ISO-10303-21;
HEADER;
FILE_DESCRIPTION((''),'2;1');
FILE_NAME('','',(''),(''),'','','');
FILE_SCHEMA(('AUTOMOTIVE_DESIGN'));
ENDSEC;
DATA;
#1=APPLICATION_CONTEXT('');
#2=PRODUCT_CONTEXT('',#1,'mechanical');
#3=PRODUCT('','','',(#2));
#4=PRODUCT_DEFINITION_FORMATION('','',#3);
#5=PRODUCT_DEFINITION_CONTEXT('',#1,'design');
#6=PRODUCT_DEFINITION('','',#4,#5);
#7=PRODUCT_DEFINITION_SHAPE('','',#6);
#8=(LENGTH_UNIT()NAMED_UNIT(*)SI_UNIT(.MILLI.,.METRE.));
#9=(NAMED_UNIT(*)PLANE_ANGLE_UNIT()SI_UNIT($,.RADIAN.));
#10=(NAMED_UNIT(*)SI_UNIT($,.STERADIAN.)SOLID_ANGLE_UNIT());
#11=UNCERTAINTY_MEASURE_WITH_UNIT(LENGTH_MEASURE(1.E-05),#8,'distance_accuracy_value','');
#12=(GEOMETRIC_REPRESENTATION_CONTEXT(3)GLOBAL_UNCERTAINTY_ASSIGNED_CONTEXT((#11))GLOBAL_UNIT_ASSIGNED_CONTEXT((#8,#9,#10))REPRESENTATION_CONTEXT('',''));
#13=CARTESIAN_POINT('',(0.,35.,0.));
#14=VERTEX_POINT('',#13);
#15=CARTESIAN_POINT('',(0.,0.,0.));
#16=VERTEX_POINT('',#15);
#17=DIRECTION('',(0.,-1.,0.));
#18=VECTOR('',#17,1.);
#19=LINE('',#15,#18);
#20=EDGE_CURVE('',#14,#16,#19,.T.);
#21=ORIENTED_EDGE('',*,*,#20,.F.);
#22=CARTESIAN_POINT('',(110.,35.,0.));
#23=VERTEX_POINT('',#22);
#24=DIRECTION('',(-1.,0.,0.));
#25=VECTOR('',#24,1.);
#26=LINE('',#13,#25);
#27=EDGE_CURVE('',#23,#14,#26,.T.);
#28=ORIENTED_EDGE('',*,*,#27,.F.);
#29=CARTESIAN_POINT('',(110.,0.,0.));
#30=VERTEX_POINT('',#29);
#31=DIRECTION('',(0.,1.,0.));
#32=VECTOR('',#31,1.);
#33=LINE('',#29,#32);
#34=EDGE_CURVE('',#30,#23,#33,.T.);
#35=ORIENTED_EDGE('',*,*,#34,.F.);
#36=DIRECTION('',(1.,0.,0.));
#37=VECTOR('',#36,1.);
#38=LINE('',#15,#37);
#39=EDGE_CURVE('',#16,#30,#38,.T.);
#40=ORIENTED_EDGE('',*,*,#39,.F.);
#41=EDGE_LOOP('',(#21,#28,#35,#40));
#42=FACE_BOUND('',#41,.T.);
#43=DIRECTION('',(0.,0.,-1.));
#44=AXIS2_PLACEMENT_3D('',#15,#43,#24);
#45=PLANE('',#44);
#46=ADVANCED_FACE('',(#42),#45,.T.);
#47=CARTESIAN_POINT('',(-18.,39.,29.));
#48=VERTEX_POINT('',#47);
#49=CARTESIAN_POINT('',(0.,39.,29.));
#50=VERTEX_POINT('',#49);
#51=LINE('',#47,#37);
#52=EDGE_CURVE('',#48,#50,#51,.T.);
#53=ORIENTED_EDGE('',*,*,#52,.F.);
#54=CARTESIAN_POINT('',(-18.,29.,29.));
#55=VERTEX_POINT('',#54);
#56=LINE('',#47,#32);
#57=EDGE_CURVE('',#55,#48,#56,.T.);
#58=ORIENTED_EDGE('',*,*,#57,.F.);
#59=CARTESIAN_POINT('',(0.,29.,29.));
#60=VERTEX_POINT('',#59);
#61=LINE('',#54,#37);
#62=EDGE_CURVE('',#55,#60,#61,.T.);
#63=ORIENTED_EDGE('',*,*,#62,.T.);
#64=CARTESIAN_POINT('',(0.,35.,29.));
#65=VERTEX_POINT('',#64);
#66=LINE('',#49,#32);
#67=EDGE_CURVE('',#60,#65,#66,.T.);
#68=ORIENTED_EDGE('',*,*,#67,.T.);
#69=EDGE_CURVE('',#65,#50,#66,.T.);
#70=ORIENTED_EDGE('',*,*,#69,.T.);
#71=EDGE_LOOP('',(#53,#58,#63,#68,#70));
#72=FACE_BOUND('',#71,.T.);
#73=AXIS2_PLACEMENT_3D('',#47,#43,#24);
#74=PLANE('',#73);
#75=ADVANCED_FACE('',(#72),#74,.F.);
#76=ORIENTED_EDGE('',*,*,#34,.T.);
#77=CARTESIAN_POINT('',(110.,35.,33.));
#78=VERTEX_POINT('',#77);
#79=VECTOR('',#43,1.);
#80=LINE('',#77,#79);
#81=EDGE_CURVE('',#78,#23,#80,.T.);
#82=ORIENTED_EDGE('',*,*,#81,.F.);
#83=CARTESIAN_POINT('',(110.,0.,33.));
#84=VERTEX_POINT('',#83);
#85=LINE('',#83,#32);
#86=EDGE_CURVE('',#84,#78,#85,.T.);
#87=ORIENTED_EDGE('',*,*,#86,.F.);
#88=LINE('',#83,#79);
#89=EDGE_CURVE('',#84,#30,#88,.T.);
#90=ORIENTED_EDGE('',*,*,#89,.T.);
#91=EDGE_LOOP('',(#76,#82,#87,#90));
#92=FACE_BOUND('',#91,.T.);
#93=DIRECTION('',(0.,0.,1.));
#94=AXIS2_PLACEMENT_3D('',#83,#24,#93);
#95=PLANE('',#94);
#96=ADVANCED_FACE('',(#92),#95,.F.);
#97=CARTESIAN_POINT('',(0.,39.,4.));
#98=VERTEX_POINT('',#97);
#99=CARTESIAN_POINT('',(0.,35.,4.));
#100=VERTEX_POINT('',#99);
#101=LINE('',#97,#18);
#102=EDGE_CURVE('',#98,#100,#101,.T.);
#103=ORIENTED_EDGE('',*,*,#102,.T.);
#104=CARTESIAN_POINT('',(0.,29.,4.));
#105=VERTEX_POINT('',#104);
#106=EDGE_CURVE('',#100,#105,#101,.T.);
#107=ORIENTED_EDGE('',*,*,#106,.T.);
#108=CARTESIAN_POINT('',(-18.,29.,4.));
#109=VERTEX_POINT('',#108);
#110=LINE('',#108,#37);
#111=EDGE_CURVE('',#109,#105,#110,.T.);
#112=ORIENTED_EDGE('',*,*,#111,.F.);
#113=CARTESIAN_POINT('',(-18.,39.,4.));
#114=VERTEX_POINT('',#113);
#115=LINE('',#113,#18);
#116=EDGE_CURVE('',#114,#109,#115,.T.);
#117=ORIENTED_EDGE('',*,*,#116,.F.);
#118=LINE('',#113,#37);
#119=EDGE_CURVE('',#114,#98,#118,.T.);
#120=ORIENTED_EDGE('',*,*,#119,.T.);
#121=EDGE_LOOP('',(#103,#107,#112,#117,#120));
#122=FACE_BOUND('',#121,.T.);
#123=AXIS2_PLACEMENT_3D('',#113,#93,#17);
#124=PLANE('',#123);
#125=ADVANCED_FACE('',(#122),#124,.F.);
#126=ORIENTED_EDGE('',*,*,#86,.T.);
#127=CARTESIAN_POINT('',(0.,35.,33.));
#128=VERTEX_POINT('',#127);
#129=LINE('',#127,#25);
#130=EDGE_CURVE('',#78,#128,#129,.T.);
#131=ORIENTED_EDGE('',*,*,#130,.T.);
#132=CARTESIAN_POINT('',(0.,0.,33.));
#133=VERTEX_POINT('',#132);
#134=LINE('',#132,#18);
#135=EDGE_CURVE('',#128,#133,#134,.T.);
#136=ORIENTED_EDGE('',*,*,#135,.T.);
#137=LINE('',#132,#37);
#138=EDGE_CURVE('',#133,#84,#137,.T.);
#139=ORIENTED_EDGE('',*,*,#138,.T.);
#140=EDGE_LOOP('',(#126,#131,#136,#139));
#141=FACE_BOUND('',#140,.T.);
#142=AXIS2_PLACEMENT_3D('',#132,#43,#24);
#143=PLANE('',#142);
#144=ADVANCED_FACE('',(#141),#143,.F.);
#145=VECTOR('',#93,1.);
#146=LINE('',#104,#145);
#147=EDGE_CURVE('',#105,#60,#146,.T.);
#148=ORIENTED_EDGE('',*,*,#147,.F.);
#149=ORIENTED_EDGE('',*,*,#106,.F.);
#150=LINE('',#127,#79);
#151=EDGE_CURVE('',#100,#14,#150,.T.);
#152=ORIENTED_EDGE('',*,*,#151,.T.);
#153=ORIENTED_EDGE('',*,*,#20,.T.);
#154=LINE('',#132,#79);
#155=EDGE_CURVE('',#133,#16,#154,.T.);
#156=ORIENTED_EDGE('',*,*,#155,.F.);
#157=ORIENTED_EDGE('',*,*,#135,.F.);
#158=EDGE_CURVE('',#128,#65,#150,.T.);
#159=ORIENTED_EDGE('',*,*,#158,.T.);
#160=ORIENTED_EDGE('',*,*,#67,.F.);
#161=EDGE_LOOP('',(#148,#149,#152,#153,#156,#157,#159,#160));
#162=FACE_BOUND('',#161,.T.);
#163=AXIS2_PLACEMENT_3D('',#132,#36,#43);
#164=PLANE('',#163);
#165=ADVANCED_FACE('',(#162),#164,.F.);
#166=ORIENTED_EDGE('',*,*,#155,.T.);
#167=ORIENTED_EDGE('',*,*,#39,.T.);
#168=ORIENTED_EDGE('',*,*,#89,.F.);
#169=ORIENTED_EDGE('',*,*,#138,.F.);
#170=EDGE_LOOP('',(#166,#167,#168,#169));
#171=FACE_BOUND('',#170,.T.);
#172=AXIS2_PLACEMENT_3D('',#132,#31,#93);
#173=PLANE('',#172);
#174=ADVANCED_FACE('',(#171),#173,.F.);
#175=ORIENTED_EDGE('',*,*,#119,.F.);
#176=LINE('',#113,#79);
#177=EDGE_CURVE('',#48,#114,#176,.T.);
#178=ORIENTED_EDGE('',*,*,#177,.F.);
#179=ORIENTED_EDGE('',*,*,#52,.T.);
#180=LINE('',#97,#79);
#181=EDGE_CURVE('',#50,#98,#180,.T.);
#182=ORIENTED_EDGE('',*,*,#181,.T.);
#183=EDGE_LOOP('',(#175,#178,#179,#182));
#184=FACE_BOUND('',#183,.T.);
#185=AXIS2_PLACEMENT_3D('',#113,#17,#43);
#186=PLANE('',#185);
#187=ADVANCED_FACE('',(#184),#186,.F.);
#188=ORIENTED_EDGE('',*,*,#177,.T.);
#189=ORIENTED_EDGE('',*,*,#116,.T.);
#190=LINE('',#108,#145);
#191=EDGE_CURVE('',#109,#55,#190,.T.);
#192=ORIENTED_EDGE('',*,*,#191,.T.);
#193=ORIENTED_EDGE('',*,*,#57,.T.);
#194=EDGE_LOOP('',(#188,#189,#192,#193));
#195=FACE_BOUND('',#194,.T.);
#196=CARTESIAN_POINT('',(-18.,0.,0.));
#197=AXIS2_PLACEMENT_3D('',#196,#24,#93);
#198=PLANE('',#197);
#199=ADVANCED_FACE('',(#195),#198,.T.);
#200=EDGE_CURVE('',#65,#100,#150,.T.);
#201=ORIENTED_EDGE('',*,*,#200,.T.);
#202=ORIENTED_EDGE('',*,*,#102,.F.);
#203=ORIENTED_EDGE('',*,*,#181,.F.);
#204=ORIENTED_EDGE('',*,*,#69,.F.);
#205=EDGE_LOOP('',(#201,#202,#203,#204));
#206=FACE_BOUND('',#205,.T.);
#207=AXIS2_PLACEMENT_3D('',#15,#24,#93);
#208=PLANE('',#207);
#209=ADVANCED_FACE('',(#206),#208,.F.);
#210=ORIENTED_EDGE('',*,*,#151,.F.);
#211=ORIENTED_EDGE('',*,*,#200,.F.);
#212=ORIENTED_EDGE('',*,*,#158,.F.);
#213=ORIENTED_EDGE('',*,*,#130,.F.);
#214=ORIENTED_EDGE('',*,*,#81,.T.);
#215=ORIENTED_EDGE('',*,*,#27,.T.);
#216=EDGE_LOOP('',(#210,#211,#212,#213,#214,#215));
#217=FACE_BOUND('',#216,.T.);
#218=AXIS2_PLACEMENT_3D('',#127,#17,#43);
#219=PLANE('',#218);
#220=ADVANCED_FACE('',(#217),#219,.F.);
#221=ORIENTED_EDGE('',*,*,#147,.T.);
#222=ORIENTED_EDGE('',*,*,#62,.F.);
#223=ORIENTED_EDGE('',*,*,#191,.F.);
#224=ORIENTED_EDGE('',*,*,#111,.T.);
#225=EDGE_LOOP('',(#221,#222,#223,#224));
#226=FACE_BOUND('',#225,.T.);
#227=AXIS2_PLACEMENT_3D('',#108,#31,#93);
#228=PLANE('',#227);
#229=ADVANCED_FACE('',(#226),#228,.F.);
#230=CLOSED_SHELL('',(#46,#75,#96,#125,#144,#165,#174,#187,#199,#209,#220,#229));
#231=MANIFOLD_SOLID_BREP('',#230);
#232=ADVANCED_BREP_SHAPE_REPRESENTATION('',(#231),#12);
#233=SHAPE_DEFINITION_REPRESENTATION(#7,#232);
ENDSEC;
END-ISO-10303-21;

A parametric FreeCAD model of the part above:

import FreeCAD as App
import Part
import Sketcher

V = App.Vector


def add_polygon(sketch, points):
    """Adds a closed chain of lines whose ends are joined by coincident constraints."""
    first, n = sketch.GeometryCount, len(points)
    for a, b in zip(points, points[1:] + points[:1]):
        sketch.addGeometry(Part.LineSegment(App.Vector(*a, 0), App.Vector(*b, 0)), False)
    for i in range(n):
        sketch.addConstraint(Sketcher.Constraint("Coincident", first + i, 2, first + (i + 1) % n, 1))

doc = App.newDocument("Part")
body = doc.addObject("PartDesign::Body", "Body")

sketch1 = body.newObject("Sketcher::SketchObject", "Sketch")
sketch1.AttachmentSupport = (doc.getObject("XY_Plane"), [""])
sketch1.MapMode = "FlatFace"
add_polygon(sketch1, [(0, 35), (0, 0), (110, 0), (110, 35)])
sketch1.addConstraint(Sketcher.Constraint("Vertical", 0))
sketch1.addConstraint(Sketcher.Constraint("Horizontal", 1))
sketch1.addConstraint(Sketcher.Constraint("Vertical", 2))
sketch1.addConstraint(Sketcher.Constraint("Horizontal", 3))
sketch1.addConstraint(Sketcher.Constraint("Coincident", 0, 2, -1, 1))
sketch1.addConstraint(Sketcher.Constraint("DistanceX", 1, 1, 1, 2, 110.0))
sketch1.addConstraint(Sketcher.Constraint("DistanceY", 0, 2, 0, 1, 35.0))
pad1 = body.newObject("PartDesign::Pad", "Pad")
pad1.Profile = sketch1
pad1.Length = 33

sketch2 = body.newObject("Sketcher::SketchObject", "Sketch001")
sketch2.AttachmentSupport = (doc.getObject("YZ_Plane"), [""])
sketch2.MapMode = "FlatFace"
add_polygon(sketch2, [(39, 4), (29, 4), (29, 29), (39, 29)])
sketch2.addConstraint(Sketcher.Constraint("Horizontal", 0))
sketch2.addConstraint(Sketcher.Constraint("Vertical", 1))
sketch2.addConstraint(Sketcher.Constraint("Horizontal", 2))
sketch2.addConstraint(Sketcher.Constraint("Vertical", 3))
sketch2.addConstraint(Sketcher.Constraint("DistanceX", 0, 2, 0, 1, 10.0))
sketch2.addConstraint(Sketcher.Constraint("DistanceY", 1, 1, 1, 2, 25.0))
sketch2.addConstraint(Sketcher.Constraint("DistanceX", -1, 1, 0, 2, 29.0))
sketch2.addConstraint(Sketcher.Constraint("DistanceY", -1, 1, 0, 2, 4.0))
pad2 = body.newObject("PartDesign::Pad", "Pad001")
pad2.Profile = sketch2
pad2.Length = 18
pad2.Reversed = True

doc.recompute()
